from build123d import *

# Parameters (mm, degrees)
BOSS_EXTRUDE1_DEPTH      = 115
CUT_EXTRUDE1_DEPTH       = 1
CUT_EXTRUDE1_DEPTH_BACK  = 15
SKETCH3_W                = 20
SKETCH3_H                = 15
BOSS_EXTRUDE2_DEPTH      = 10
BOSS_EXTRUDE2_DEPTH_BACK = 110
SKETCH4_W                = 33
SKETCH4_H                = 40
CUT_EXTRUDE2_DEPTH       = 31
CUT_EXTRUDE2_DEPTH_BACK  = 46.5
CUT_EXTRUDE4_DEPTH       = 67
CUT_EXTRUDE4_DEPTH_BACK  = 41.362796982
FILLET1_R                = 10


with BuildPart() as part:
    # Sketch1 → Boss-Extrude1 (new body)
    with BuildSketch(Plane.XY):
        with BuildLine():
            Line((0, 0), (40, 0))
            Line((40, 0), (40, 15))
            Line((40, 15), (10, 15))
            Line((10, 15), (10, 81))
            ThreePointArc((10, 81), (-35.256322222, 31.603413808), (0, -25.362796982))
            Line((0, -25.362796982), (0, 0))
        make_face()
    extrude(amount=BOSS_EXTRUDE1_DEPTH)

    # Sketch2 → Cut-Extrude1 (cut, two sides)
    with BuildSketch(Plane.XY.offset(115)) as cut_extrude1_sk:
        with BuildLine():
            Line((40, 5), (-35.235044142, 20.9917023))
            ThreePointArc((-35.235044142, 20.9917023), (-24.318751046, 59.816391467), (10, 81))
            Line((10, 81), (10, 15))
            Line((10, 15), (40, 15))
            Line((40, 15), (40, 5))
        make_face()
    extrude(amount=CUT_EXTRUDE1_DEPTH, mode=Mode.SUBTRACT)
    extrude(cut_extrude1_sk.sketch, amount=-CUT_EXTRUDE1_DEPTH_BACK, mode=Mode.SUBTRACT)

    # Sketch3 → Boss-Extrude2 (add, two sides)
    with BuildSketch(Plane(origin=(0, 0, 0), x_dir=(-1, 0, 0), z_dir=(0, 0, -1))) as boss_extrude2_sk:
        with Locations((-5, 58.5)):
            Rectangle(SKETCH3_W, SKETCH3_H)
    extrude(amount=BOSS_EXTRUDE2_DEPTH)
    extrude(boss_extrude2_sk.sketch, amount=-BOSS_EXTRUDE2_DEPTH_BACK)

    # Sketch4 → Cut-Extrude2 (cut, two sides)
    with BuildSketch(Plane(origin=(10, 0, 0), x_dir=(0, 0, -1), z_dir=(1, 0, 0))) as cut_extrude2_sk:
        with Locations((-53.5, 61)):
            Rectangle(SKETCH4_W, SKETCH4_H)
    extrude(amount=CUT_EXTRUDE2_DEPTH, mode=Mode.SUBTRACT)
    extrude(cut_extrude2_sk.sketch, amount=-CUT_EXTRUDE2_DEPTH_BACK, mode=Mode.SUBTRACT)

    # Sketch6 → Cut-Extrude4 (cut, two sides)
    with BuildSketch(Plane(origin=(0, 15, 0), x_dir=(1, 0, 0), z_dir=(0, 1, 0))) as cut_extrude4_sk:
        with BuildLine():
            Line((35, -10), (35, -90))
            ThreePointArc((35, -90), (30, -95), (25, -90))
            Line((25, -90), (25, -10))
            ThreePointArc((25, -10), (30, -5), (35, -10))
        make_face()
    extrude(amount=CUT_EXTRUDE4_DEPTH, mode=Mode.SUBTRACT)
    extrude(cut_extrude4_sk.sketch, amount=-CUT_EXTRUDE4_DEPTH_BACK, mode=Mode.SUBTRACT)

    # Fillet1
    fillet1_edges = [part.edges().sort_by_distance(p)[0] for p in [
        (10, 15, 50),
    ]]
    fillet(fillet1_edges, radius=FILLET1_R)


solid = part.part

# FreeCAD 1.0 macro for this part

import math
import FreeCAD as App
import Part
import Sketcher
from FreeCAD import Vector
Q = App.Units.Quantity


def edges_at(feature, points):
    """Names of the edges that pass closest to the given points."""
    edges = feature.Shape.Edges
    near = lambda p: min(range(len(edges)), key=lambda i: edges[i].distToShape(Part.Vertex(*p))[0])
    return sorted({f"Edge{near(p) + 1}" for p in points})


def add_polygon(sketch, points):
    """Adds a closed chain of lines whose ends are joined by coincident constraints."""
    first, n = sketch.GeometryCount, len(points)
    for a, b in zip(points, points[1:] + points[:1]):
        sketch.addGeometry(Part.LineSegment(App.Vector(*a, 0), App.Vector(*b, 0)), False)
    for i in range(n):
        sketch.addConstraint(Sketcher.Constraint("Coincident", first + i, 2, first + (i + 1) % n, 1))

doc = App.newDocument("Part")
body = doc.addObject("PartDesign::Body", "Body")

# Sketch on XY plane
sketch1 = doc.addObject("Sketcher::SketchObject", "Sketch")
body.addObject(sketch1)
sketch1.AttachmentSupport = (doc.XY_Plane, [""])
sketch1.MapMode = "FlatFace"
sketch1.addGeometry(Part.LineSegment(Vector(0, 0, 0), Vector(40, 0, 0)), False)
sketch1.addGeometry(Part.LineSegment(Vector(40, 0, 0), Vector(40, 15, 0)), False)
sketch1.addGeometry(Part.LineSegment(Vector(40, 15, 0), Vector(10, 15, 0)), False)
sketch1.addGeometry(Part.LineSegment(Vector(10, 15, 0), Vector(10, 81, 0)), False)
sketch1.addGeometry(Part.ArcOfCircle(Part.Circle(Vector(20, 26, 0), Vector(0, 0, 1), 56), math.radians(100), math.radians(249)), False)
sketch1.addGeometry(Part.LineSegment(Vector(0, -25, 0), Vector(0, 0, 0)), False)
sketch1.addConstraint(Sketcher.Constraint("Coincident", 0, 2, 1, 1))
sketch1.addConstraint(Sketcher.Constraint("Coincident", 1, 2, 2, 1))
sketch1.addConstraint(Sketcher.Constraint("Coincident", 2, 2, 3, 1))
sketch1.addConstraint(Sketcher.Constraint("Coincident", 3, 2, 4, 1))
sketch1.addConstraint(Sketcher.Constraint("Coincident", 4, 2, 5, 1))
sketch1.addConstraint(Sketcher.Constraint("Coincident", 5, 2, 0, 1))
sketch1.addConstraint(Sketcher.Constraint("Horizontal", 0))
sketch1.addConstraint(Sketcher.Constraint("Vertical", 1))
sketch1.addConstraint(Sketcher.Constraint("Horizontal", 2))
sketch1.addConstraint(Sketcher.Constraint("Vertical", 3))
sketch1.addConstraint(Sketcher.Constraint("Vertical", 5))
sketch1.addConstraint(Sketcher.Constraint("Coincident", 5, 2, -1, 1))
sketch1.addConstraint(Sketcher.Constraint("Radius", 4, 55.5))
sketch1.addConstraint(Sketcher.Constraint("DistanceX", 0, 1, 0, 2, 40.0))
sketch1.addConstraint(Sketcher.Constraint("DistanceX", 2, 2, 2, 1, 30.0))
sketch1.addConstraint(Sketcher.Constraint("DistanceY", 1, 1, 1, 2, 15.0))
sketch1.addConstraint(Sketcher.Constraint("DistanceY", 3, 1, 3, 2, 66.0))
sketch1.addConstraint(Sketcher.Constraint("DistanceX", -1, 1, 4, 3, 20.0))
pad1 = doc.addObject("PartDesign::Pad", "Pad")
body.addObject(pad1)
pad1.Profile = sketch1
pad1.Length = 115

# Sketch on XY plane
sketch2 = doc.addObject("Sketcher::SketchObject", "Sketch001")
body.addObject(sketch2)
sketch2.AttachmentSupport = (doc.XY_Plane, [""])
sketch2.MapMode = "FlatFace"
sketch2.AttachmentOffset = App.Placement(Vector(0, 0, 115), App.Rotation())
sketch2.addGeometry(Part.LineSegment(Vector(-35, 21, 0), Vector(40, 5, 0)), False)
sketch2.addGeometry(Part.LineSegment(Vector(40, 5, 0), Vector(40, 15, 0)), False)
sketch2.addGeometry(Part.LineSegment(Vector(40, 15, 0), Vector(10, 15, 0)), False)
sketch2.addGeometry(Part.LineSegment(Vector(10, 15, 0), Vector(10, 81, 0)), False)
sketch2.addGeometry(Part.ArcOfCircle(Part.Circle(Vector(20, 26, 0), Vector(0, 0, 1), 55), math.radians(100), math.radians(186)), False)
sketch2.addConstraint(Sketcher.Constraint("Coincident", 0, 2, 1, 1))
sketch2.addConstraint(Sketcher.Constraint("Coincident", 1, 2, 2, 1))
sketch2.addConstraint(Sketcher.Constraint("Coincident", 2, 2, 3, 1))
sketch2.addConstraint(Sketcher.Constraint("Coincident", 3, 2, 4, 1))
sketch2.addConstraint(Sketcher.Constraint("Coincident", 4, 2, 0, 1))
sketch2.addConstraint(Sketcher.Constraint("Vertical", 1))
sketch2.addConstraint(Sketcher.Constraint("Horizontal", 2))
sketch2.addConstraint(Sketcher.Constraint("Vertical", 3))
sketch2.addConstraint(Sketcher.Constraint("Radius", 4, 55.5))
sketch2.addConstraint(Sketcher.Constraint("DistanceX", 2, 2, 2, 1, 30.0))
sketch2.addConstraint(Sketcher.Constraint("DistanceY", 1, 1, 1, 2, 10.0))
sketch2.addConstraint(Sketcher.Constraint("DistanceY", 3, 1, 3, 2, 66.0))
sketch2.addConstraint(Sketcher.Constraint("Angle", 0, Q("-12 deg")))
sketch2.addConstraint(Sketcher.Constraint("DistanceX", -1, 1, 4, 3, 20.0))
sketch2.addConstraint(Sketcher.Constraint("DistanceX", -1, 1, 0, 2, 40.0))
sketch2.addConstraint(Sketcher.Constraint("DistanceY", -1, 1, 0, 2, 5.0))
pocket1 = doc.addObject("PartDesign::Pocket", "Pocket")
body.addObject(pocket1)
pocket1.Profile = sketch2
pocket1.Type = "TwoLengths"
pocket1.Length = 1
pocket1.Length2 = 15
pocket1.Reversed = True

# Sketch on XY plane
sketch3 = doc.addObject("Sketcher::SketchObject", "Sketch002")
body.addObject(sketch3)
sketch3.AttachmentSupport = (doc.XY_Plane, [""])
sketch3.MapMode = "FlatFace"
add_polygon(sketch3, [(15, 66), (15, 51), (-5, 51), (-5, 66)])  # lines 0-3
sketch3.addConstraint(Sketcher.Constraint("Vertical", 0))
sketch3.addConstraint(Sketcher.Constraint("Horizontal", 1))
sketch3.addConstraint(Sketcher.Constraint("Vertical", 2))
sketch3.addConstraint(Sketcher.Constraint("Horizontal", 3))
sketch3.addConstraint(Sketcher.Constraint("DistanceX", 1, 2, 1, 1, 20.0))
sketch3.addConstraint(Sketcher.Constraint("DistanceY", 0, 2, 0, 1, 15.0))
sketch3.addConstraint(Sketcher.Constraint("DistanceX", -1, 1, 0, 2, 15.0))
sketch3.addConstraint(Sketcher.Constraint("DistanceY", -1, 1, 0, 2, 51.0))
pad2 = doc.addObject("PartDesign::Pad", "Pad001")
body.addObject(pad2)
pad2.Profile = sketch3
pad2.Type = "TwoLengths"
pad2.Length = 10
pad2.Length2 = 110
pad2.Reversed = True

# Sketch on YZ plane
sketch4 = doc.addObject("Sketcher::SketchObject", "Sketch003")
body.addObject(sketch4)
sketch4.AttachmentSupport = (doc.YZ_Plane, [""])
sketch4.MapMode = "FlatFace"
sketch4.AttachmentOffset = App.Placement(Vector(0, 0, 10), App.Rotation())
add_polygon(sketch4, [(81, 70), (41, 70), (41, 37), (81, 37)])  # lines 0-3
sketch4.addConstraint(Sketcher.Constraint("Horizontal", 0))
sketch4.addConstraint(Sketcher.Constraint("Vertical", 1))
sketch4.addConstraint(Sketcher.Constraint("Horizontal", 2))
sketch4.addConstraint(Sketcher.Constraint("Vertical", 3))
sketch4.addConstraint(Sketcher.Constraint("DistanceX", 0, 2, 0, 1, 40.0))
sketch4.addConstraint(Sketcher.Constraint("DistanceY", 1, 2, 1, 1, 33.0))
sketch4.addConstraint(Sketcher.Constraint("DistanceX", -1, 1, 0, 2, 41.0))
sketch4.addConstraint(Sketcher.Constraint("DistanceY", -1, 1, 0, 2, 70.0))
pocket2 = doc.addObject("PartDesign::Pocket", "Pocket001")
body.addObject(pocket2)
pocket2.Profile = sketch4
pocket2.Type = "ThroughAll"
pocket2.Midplane = True

# Sketch on XZ plane
sketch5 = doc.addObject("Sketcher::SketchObject", "Sketch004")
body.addObject(sketch5)
sketch5.AttachmentSupport = (doc.XZ_Plane, [""])
sketch5.MapMode = "FlatFace"
sketch5.AttachmentOffset = App.Placement(Vector(0, 0, -15), App.Rotation())
sketch5.addGeometry(Part.LineSegment(Vector(35, 90, 0), Vector(35, 10, 0)), False)
sketch5.addGeometry(Part.ArcOfCircle(Part.Circle(Vector(30, 10, 0), Vector(0, 0, 1), 5), math.radians(180), math.radians(360)), False)
sketch5.addGeometry(Part.LineSegment(Vector(25, 10, 0), Vector(25, 90, 0)), False)
sketch5.addGeometry(Part.ArcOfCircle(Part.Circle(Vector(30, 90, 0), Vector(0, 0, 1), 5), math.radians(0), math.radians(180)), False)
sketch5.addConstraint(Sketcher.Constraint("Tangent", 0, 2, 1, 2))
sketch5.addConstraint(Sketcher.Constraint("Tangent", 1, 1, 2, 1))
sketch5.addConstraint(Sketcher.Constraint("Tangent", 2, 2, 3, 2))
sketch5.addConstraint(Sketcher.Constraint("Tangent", 3, 1, 0, 1))
sketch5.addConstraint(Sketcher.Constraint("Vertical", 0))
sketch5.addConstraint(Sketcher.Constraint("Vertical", 2))
sketch5.addConstraint(Sketcher.Constraint("Radius", 1, 5.0))
sketch5.addConstraint(Sketcher.Constraint("DistanceY", 0, 2, 0, 1, 80.0))
sketch5.addConstraint(Sketcher.Constraint("DistanceX", -1, 1, 1, 3, 30.0))
sketch5.addConstraint(Sketcher.Constraint("DistanceY", -1, 1, 1, 3, 10.0))
pocket3 = doc.addObject("PartDesign::Pocket", "Pocket002")
body.addObject(pocket3)
pocket3.Profile = sketch5
pocket3.Type = "ThroughAll"
pocket3.Midplane = True
doc.recompute()

fillet = doc.addObject("PartDesign::Fillet", "Fillet")
body.addObject(fillet)
fillet.Base = (pocket3, edges_at(pocket3, [(10, 15, 50)]))
fillet.Radius = 10

doc.recompute()
